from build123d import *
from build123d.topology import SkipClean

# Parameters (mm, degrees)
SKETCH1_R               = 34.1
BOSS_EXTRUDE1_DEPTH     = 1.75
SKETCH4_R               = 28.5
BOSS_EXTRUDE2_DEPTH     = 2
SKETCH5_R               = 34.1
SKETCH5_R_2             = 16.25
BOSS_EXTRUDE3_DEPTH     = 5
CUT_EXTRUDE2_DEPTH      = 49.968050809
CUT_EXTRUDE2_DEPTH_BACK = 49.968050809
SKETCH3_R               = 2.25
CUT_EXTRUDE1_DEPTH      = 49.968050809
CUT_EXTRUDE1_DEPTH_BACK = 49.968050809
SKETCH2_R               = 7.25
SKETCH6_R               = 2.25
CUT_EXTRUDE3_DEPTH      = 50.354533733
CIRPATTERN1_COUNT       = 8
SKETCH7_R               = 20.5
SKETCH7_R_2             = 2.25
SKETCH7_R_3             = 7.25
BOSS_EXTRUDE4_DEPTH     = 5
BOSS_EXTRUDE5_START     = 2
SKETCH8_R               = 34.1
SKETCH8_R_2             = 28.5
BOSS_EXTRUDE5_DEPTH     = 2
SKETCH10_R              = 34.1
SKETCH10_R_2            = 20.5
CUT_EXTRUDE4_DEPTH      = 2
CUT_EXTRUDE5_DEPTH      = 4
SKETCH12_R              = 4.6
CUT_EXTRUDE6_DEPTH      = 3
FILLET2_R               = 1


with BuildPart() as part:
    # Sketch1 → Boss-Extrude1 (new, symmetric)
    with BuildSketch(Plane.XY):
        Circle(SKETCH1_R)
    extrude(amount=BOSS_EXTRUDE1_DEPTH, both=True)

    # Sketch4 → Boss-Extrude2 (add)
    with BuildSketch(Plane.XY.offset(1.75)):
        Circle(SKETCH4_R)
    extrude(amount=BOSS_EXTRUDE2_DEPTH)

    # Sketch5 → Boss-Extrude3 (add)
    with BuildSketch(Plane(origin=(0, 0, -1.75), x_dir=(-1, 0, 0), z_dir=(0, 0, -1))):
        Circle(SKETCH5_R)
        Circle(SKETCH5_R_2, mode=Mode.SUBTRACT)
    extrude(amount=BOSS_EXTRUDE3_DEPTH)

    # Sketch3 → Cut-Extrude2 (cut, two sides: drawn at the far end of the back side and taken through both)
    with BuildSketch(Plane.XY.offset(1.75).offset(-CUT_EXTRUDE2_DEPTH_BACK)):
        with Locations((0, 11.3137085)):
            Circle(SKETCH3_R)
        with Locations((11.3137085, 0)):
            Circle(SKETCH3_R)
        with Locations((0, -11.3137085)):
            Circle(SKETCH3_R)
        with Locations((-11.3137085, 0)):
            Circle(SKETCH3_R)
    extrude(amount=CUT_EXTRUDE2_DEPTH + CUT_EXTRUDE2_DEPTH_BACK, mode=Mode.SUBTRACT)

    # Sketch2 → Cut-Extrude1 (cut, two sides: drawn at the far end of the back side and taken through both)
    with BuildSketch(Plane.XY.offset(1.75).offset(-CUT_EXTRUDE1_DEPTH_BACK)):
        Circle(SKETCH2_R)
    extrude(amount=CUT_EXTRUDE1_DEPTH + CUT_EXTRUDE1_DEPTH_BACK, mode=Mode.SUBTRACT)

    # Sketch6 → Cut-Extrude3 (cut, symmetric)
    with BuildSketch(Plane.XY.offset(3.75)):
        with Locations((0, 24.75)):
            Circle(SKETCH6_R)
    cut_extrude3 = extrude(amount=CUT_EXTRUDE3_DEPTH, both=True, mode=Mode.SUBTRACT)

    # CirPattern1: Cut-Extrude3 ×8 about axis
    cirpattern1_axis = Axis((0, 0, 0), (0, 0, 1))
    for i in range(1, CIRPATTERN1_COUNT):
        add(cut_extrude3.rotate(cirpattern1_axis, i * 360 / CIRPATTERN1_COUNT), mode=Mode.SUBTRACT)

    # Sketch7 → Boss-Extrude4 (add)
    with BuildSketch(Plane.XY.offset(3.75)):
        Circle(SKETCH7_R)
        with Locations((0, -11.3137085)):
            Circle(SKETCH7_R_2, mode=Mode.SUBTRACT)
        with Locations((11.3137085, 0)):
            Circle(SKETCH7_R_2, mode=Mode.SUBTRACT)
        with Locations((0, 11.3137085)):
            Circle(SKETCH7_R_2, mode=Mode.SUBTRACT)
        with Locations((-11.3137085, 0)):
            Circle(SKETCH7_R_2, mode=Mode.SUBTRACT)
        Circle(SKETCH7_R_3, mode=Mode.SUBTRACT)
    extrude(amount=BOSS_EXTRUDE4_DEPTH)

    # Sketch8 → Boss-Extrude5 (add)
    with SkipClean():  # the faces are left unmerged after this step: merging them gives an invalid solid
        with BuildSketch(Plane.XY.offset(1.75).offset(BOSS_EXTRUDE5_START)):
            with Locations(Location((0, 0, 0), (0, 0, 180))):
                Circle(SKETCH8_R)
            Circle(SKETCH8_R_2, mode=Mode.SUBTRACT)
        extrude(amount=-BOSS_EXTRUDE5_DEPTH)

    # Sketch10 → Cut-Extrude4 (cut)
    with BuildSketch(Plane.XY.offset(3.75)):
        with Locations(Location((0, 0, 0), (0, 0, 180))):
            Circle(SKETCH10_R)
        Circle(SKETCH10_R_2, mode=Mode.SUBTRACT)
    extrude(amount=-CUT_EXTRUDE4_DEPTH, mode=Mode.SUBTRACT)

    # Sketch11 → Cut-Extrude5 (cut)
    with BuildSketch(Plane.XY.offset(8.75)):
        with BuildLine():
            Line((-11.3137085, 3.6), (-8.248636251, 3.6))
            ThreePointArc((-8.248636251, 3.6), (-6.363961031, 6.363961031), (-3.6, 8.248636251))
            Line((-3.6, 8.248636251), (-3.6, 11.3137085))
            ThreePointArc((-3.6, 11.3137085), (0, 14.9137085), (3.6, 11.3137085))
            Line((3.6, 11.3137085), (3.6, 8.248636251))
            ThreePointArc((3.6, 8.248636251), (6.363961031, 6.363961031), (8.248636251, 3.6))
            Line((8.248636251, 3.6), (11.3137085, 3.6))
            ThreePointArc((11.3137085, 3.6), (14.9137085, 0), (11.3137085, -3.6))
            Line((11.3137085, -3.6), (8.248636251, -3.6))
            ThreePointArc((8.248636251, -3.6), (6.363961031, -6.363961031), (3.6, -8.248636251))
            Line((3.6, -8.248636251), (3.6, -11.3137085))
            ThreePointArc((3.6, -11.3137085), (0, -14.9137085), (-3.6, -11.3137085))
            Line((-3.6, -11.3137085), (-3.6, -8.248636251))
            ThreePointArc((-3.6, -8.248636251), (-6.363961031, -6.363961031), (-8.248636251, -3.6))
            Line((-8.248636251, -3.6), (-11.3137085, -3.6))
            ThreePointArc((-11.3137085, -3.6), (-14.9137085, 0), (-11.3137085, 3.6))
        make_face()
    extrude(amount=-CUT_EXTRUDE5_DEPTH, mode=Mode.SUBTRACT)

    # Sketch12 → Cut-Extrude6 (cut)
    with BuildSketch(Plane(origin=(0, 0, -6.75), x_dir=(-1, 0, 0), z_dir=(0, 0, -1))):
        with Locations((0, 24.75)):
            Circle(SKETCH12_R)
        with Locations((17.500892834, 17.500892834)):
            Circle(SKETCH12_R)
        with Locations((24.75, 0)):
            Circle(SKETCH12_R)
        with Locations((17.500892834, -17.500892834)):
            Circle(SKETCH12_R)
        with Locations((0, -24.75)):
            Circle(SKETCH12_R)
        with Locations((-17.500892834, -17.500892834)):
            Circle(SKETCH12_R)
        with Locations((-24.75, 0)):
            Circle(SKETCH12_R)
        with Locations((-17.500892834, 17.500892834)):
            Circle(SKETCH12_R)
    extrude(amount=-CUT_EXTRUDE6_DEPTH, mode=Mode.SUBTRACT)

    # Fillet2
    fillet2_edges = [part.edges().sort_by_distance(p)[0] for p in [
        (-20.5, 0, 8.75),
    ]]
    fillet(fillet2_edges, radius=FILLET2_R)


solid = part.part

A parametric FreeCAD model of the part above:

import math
import FreeCAD as App
import Part
import Sketcher
Q = App.Units.Quantity


def edges_at(feature, points):
    """Names of the edges that pass closest to the given points."""
    edges = feature.Shape.Edges
    near = lambda p: min(range(len(edges)), key=lambda i: edges[i].distToShape(Part.Vertex(*p))[0])
    return sorted({f"Edge{near(p) + 1}" for p in points})

doc = App.newDocument("Part")
body = doc.addObject("PartDesign::Body", "Body")

# Sketch on XY plane
sketch1 = body.newObject("Sketcher::SketchObject", "Sketch")
sketch1.AttachmentSupport = (doc.getObject("XY_Plane"), [""])
sketch1.MapMode = "FlatFace"
sketch1.addGeometry(Part.Circle(App.Vector(0, 0, 0), App.Vector(0, 0, 1), 34), False)
sketch1.addConstraint([
    Sketcher.Constraint("Coincident", 0, 3, -1, 1),
    Sketcher.Constraint("Diameter", 0, Q("68.2 mm")),
])
pad1 = body.newObject("PartDesign::Pad", "Pad")
pad1.Profile = sketch1
pad1.Length = 3.5
pad1.Midplane = True

# Sketch on XY plane
sketch2 = body.newObject("Sketcher::SketchObject", "Sketch001")
sketch2.AttachmentSupport = (doc.getObject("XY_Plane"), [""])
sketch2.MapMode = "FlatFace"
sketch2.AttachmentOffset = App.Placement(App.Vector(0, 0, 1.75), App.Rotation())
sketch2.addGeometry(Part.Circle(App.Vector(0, 0, 0), App.Vector(0, 0, 1), 28), False)
sketch2.addConstraint([
    Sketcher.Constraint("Coincident", 0, 3, -1, 1),
    Sketcher.Constraint("Diameter", 0, Q("57 mm")),
])
pad2 = body.newObject("PartDesign::Pad", "Pad001")
pad2.Profile = sketch2
pad2.Length = 2

# Sketch on XY plane
sketch3 = body.newObject("Sketcher::SketchObject", "Sketch002")
sketch3.AttachmentSupport = (doc.getObject("XY_Plane"), [""])
sketch3.MapMode = "FlatFace"
sketch3.AttachmentOffset = App.Placement(App.Vector(0, 0, -1.75), App.Rotation())
sketch3.addGeometry([
    Part.Circle(App.Vector(0, 0, 0), App.Vector(0, 0, 1), 34),
    Part.Circle(App.Vector(0, 0, 0), App.Vector(0, 0, 1), 16),
], False)
sketch3.addConstraint([
    Sketcher.Constraint("Coincident", 0, 3, -1, 1),
    Sketcher.Constraint("Coincident", 1, 3, -1, 1),
    Sketcher.Constraint("Diameter", 0, Q("68.2 mm")),
    Sketcher.Constraint("Diameter", 1, Q("32.5 mm")),
])
pad3 = body.newObject("PartDesign::Pad", "Pad002")
pad3.Profile = sketch3
pad3.Length = 5
pad3.Reversed = True

# Sketch on XY plane
sketch4 = body.newObject("Sketcher::SketchObject", "Sketch003")
sketch4.AttachmentSupport = (doc.getObject("XY_Plane"), [""])
sketch4.MapMode = "FlatFace"
sketch4.AttachmentOffset = App.Placement(App.Vector(0, 0, 1.75), App.Rotation())
sketch4.addGeometry([
    Part.Circle(App.Vector(0, 11.3, 0), App.Vector(0, 0, 1), 2.2),
    Part.Circle(App.Vector(11.3, 0, 0), App.Vector(0, 0, 1), 2.2),
    Part.Circle(App.Vector(0, -11.3, 0), App.Vector(0, 0, 1), 2.2),
    Part.Circle(App.Vector(-11.3, 0, 0), App.Vector(0, 0, 1), 2.2),
], False)
sketch4.addConstraint([
    Sketcher.Constraint("Equal", 0, 1),
    Sketcher.Constraint("Equal", 1, 2),
    Sketcher.Constraint("Equal", 2, 3),
    Sketcher.Constraint("Symmetric", 0, 3, 2, 3, -1, 1),
    Sketcher.Constraint("Symmetric", 1, 3, 3, 3, -1, 1),
    Sketcher.Constraint("PointOnObject", 0, 3, -2),
    Sketcher.Constraint("PointOnObject", 1, 3, -1),
    Sketcher.Constraint("Diameter", 0, Q("4.5 mm")),
    Sketcher.Constraint("DistanceY", -1, 1, 0, 3, Q("11.313709 mm")),
    Sketcher.Constraint("DistanceX", -1, 1, 1, 3, Q("11.313709 mm")),
])
pocket1 = body.newObject("PartDesign::Pocket", "Pocket")
pocket1.Profile = sketch4
pocket1.Type = "ThroughAll"
pocket1.Midplane = True

# Sketch on XY plane
sketch5 = body.newObject("Sketcher::SketchObject", "Sketch004")
sketch5.AttachmentSupport = (doc.getObject("XY_Plane"), [""])
sketch5.MapMode = "FlatFace"
sketch5.AttachmentOffset = App.Placement(App.Vector(0, 0, 1.75), App.Rotation())
sketch5.addGeometry(Part.Circle(App.Vector(0, 0, 0), App.Vector(0, 0, 1), 7), False)
sketch5.addConstraint([
    Sketcher.Constraint("Coincident", 0, 3, -1, 1),
    Sketcher.Constraint("Diameter", 0, Q("14.5 mm")),
])
pocket2 = body.newObject("PartDesign::Pocket", "Pocket001")
pocket2.Profile = sketch5
pocket2.Type = "ThroughAll"
pocket2.Midplane = True

# Sketch on XY plane
sketch6 = body.newObject("Sketcher::SketchObject", "Sketch005")
sketch6.AttachmentSupport = (doc.getObject("XY_Plane"), [""])
sketch6.MapMode = "FlatFace"
sketch6.AttachmentOffset = App.Placement(App.Vector(0, 0, 3.75), App.Rotation())
sketch6.addGeometry(Part.Circle(App.Vector(0, 24.8, 0), App.Vector(0, 0, 1), 2.2), False)
sketch6.addConstraint([
    Sketcher.Constraint("PointOnObject", 0, 3, -2),
    Sketcher.Constraint("Diameter", 0, Q("4.5 mm")),
    Sketcher.Constraint("DistanceY", -1, 1, 0, 3, Q("24.75 mm")),
])
pocket3 = body.newObject("PartDesign::Pocket", "Pocket002")
pocket3.Profile = sketch6
pocket3.Length = 100.709067
pocket3.Midplane = True
doc.recompute()

polarpattern = body.newObject("PartDesign::PolarPattern", "PolarPattern")
polarpattern.Originals = [pocket3]
polarpattern.Axis = (doc.getObject("Z_Axis"), [""])
polarpattern.Angle = 360
polarpattern.Occurrences = 8
body.Tip = polarpattern

# Sketch on XY plane
sketch7 = body.newObject("Sketcher::SketchObject", "Sketch006")
sketch7.AttachmentSupport = (doc.getObject("XY_Plane"), [""])
sketch7.MapMode = "FlatFace"
sketch7.AttachmentOffset = App.Placement(App.Vector(0, 0, 3.75), App.Rotation())
sketch7.addGeometry([
    Part.Circle(App.Vector(0, 0, 0), App.Vector(0, 0, 1), 20.5),  # 0
    Part.Circle(App.Vector(0, -11.3, 0), App.Vector(0, 0, 1), 2.2),  # 1
    Part.Circle(App.Vector(-11.3, 0, 0), App.Vector(0, 0, 1), 2.2),  # 2
    Part.Circle(App.Vector(0, 0, 0), App.Vector(0, 0, 1), 7.2),  # 3
    Part.Circle(App.Vector(11.3, 0, 0), App.Vector(0, 0, 1), 2.2),  # 4
    Part.Circle(App.Vector(0, 11.3, 0), App.Vector(0, 0, 1), 2.2),  # 5
], False)
sketch7.addConstraint([
    Sketcher.Constraint("Coincident", 0, 3, -1, 1),
    Sketcher.Constraint("Coincident", 3, 3, -1, 1),
    Sketcher.Constraint("Equal", 1, 2),
    Sketcher.Constraint("Equal", 2, 4),
    Sketcher.Constraint("Equal", 4, 5),
    Sketcher.Constraint("Symmetric", 2, 3, 4, 3, -1, 1),
    Sketcher.Constraint("Symmetric", 1, 3, 5, 3, -1, 1),
    Sketcher.Constraint("PointOnObject", 1, 3, -2),
    Sketcher.Constraint("PointOnObject", 2, 3, -1),
    Sketcher.Constraint("Diameter", 0, Q("41 mm")),
    Sketcher.Constraint("Diameter", 1, Q("4.5 mm")),
    Sketcher.Constraint("Diameter", 3, Q("14.5 mm")),
    Sketcher.Constraint("DistanceY", 1, 3, -1, 1, Q("11.313709 mm")),
    Sketcher.Constraint("DistanceX", 2, 3, -1, 1, Q("11.313709 mm")),
])
pad4 = body.newObject("PartDesign::Pad", "Pad003")
pad4.Profile = sketch7
pad4.Length = 5

# Sketch on XY plane
sketch8 = body.newObject("Sketcher::SketchObject", "Sketch007")
sketch8.AttachmentSupport = (doc.getObject("XY_Plane"), [""])
sketch8.MapMode = "FlatFace"
sketch8.AttachmentOffset = App.Placement(App.Vector(0, 0, 3.75), App.Rotation())
sketch8.addGeometry([
    Part.Circle(App.Vector(0, 0, 0), App.Vector(0, 0, 1), 34),
    Part.Circle(App.Vector(0, 0, 0), App.Vector(0, 0, 1), 28),
], False)
sketch8.addConstraint([
    Sketcher.Constraint("Coincident", 0, 3, -1, 1),
    Sketcher.Constraint("Coincident", 1, 3, -1, 1),
    Sketcher.Constraint("Diameter", 1, Q("57 mm")),
    Sketcher.Constraint("Diameter", 0, Q("68.2 mm")),
])
pad5 = body.newObject("PartDesign::Pad", "Pad004")
pad5.Profile = sketch8
pad5.Length = 2
pad5.Reversed = True

# Sketch on XY plane
sketch9 = body.newObject("Sketcher::SketchObject", "Sketch008")
sketch9.AttachmentSupport = (doc.getObject("XY_Plane"), [""])
sketch9.MapMode = "FlatFace"
sketch9.AttachmentOffset = App.Placement(App.Vector(0, 0, 3.75), App.Rotation())
sketch9.addGeometry([
    Part.Circle(App.Vector(0, 0, 0), App.Vector(0, 0, 1), 34),
    Part.Circle(App.Vector(0, 0, 0), App.Vector(0, 0, 1), 20),
], False)
sketch9.addConstraint([
    Sketcher.Constraint("Coincident", 0, 3, -1, 1),
    Sketcher.Constraint("Coincident", 1, 3, -1, 1),
    Sketcher.Constraint("Diameter", 1, Q("41 mm")),
    Sketcher.Constraint("Diameter", 0, Q("68.2 mm")),
])
pocket4 = body.newObject("PartDesign::Pocket", "Pocket003")
pocket4.Profile = sketch9
pocket4.Length = 2

# Sketch on XY plane
sketch10 = body.newObject("Sketcher::SketchObject", "Sketch009")
sketch10.AttachmentSupport = (doc.getObject("XY_Plane"), [""])
sketch10.MapMode = "FlatFace"
sketch10.AttachmentOffset = App.Placement(App.Vector(0, 0, 8.75), App.Rotation())
sketch10.addGeometry([
    Part.LineSegment(App.Vector(-8.2, 3.6, 0), App.Vector(-11.3, 3.6, 0)),  # 0
    Part.ArcOfCircle(Part.Circle(App.Vector(-11.3, 0, 0), App.Vector(0, 0, 1), 3.6), math.radians(90), math.radians(270)),  # 1
    Part.LineSegment(App.Vector(-11.3, -3.6, 0), App.Vector(-8.2, -3.6, 0)),  # 2
    Part.ArcOfCircle(Part.Circle(App.Vector(0, 0, 0), App.Vector(0, 0, 1), 9), math.radians(-156), math.radians(-114)),  # 3
    Part.LineSegment(App.Vector(-3.6, -8.2, 0), App.Vector(-3.6, -11.3, 0)),  # 4
    Part.ArcOfCircle(Part.Circle(App.Vector(0, -11.3, 0), App.Vector(0, 0, 1), 3.6), math.radians(180), math.radians(360)),  # 5
    Part.LineSegment(App.Vector(3.6, -11.3, 0), App.Vector(3.6, -8.2, 0)),  # 6
    Part.ArcOfCircle(Part.Circle(App.Vector(0, 0, 0), App.Vector(0, 0, 1), 9), math.radians(-66), math.radians(-24)),  # 7
    Part.LineSegment(App.Vector(8.2, -3.6, 0), App.Vector(11.3, -3.6, 0)),  # 8
    Part.ArcOfCircle(Part.Circle(App.Vector(11.3, 0, 0), App.Vector(0, 0, 1), 3.6), math.radians(-90), math.radians(90)),  # 9
    Part.LineSegment(App.Vector(11.3, 3.6, 0), App.Vector(8.2, 3.6, 0)),  # 10
    Part.ArcOfCircle(Part.Circle(App.Vector(0, 0, 0), App.Vector(0, 0, 1), 9), math.radians(24), math.radians(66)),  # 11
    Part.LineSegment(App.Vector(3.6, 8.2, 0), App.Vector(3.6, 11.3, 0)),  # 12
    Part.ArcOfCircle(Part.Circle(App.Vector(0, 11.3, 0), App.Vector(0, 0, 1), 3.6), math.radians(0), math.radians(180)),  # 13
    Part.LineSegment(App.Vector(-3.6, 11.3, 0), App.Vector(-3.6, 8.2, 0)),  # 14
    Part.ArcOfCircle(Part.Circle(App.Vector(0, 0, 0), App.Vector(0, 0, 1), 9), math.radians(114), math.radians(156)),  # 15
], False)
sketch10.addConstraint([
    Sketcher.Constraint("Tangent", 0, 2, 1, 1),
    Sketcher.Constraint("Tangent", 1, 2, 2, 1),
    Sketcher.Constraint("Coincident", 2, 2, 3, 1),
    Sketcher.Constraint("Coincident", 3, 2, 4, 1),
    Sketcher.Constraint("Tangent", 4, 2, 5, 1),
    Sketcher.Constraint("Tangent", 5, 2, 6, 1),
    Sketcher.Constraint("Coincident", 6, 2, 7, 1),
    Sketcher.Constraint("Coincident", 7, 2, 8, 1),
    Sketcher.Constraint("Tangent", 8, 2, 9, 1),
    Sketcher.Constraint("Tangent", 9, 2, 10, 1),
    Sketcher.Constraint("Coincident", 10, 2, 11, 1),
    Sketcher.Constraint("Coincident", 11, 2, 12, 1),
    Sketcher.Constraint("Tangent", 12, 2, 13, 1),
    Sketcher.Constraint("Tangent", 13, 2, 14, 1),
    Sketcher.Constraint("Coincident", 14, 2, 15, 1),
    Sketcher.Constraint("Coincident", 15, 2, 0, 1),
    Sketcher.Constraint("Horizontal", 0),
    Sketcher.Constraint("Horizontal", 2),
    Sketcher.Constraint("Vertical", 4),
    Sketcher.Constraint("Vertical", 6),
    Sketcher.Constraint("Horizontal", 8),
    Sketcher.Constraint("Horizontal", 10),
    Sketcher.Constraint("Vertical", 12),
    Sketcher.Constraint("Vertical", 14),
    Sketcher.Constraint("Coincident", 3, 3, -1, 1),
    Sketcher.Constraint("Coincident", 7, 3, -1, 1),
    Sketcher.Constraint("Coincident", 11, 3, -1, 1),
    Sketcher.Constraint("Coincident", 15, 3, -1, 1),
    Sketcher.Constraint("Equal", 1, 5),
    Sketcher.Constraint("Equal", 3, 7),
    Sketcher.Constraint("Equal", 5, 9),
    Sketcher.Constraint("Equal", 7, 11),
    Sketcher.Constraint("Equal", 9, 13),
    Sketcher.Constraint("Equal", 11, 15),
    Sketcher.Constraint("Symmetric", 1, 3, 9, 3, -1, 1),
    Sketcher.Constraint("Symmetric", 5, 3, 13, 3, -1, 1),
    Sketcher.Constraint("PointOnObject", 1, 3, -1),
    Sketcher.Constraint("PointOnObject", 5, 3, -2),
    Sketcher.Constraint("Equal", 10, 4),
    Sketcher.Constraint("Radius", 3, Q("9 mm")),
    Sketcher.Constraint("Radius", 1, Q("3.6 mm")),
    Sketcher.Constraint("DistanceX", 0, 2, 0, 1, Q("3.065072 mm")),
])
pocket5 = body.newObject("PartDesign::Pocket", "Pocket004")
pocket5.Profile = sketch10
pocket5.Length = 4

# Sketch on XY plane
sketch11 = body.newObject("Sketcher::SketchObject", "Sketch010")
sketch11.AttachmentSupport = (doc.getObject("XY_Plane"), [""])
sketch11.MapMode = "FlatFace"
sketch11.AttachmentOffset = App.Placement(App.Vector(0, 0, -6.75), App.Rotation())
sketch11.addGeometry([
    Part.Circle(App.Vector(0, 24.8, 0), App.Vector(0, 0, 1), 4.6),  # 0
    Part.Circle(App.Vector(-17.5, 17.5, 0), App.Vector(0, 0, 1), 4.6),  # 1
    Part.Circle(App.Vector(-24.8, 0, 0), App.Vector(0, 0, 1), 4.6),  # 2
    Part.Circle(App.Vector(-17.5, -17.5, 0), App.Vector(0, 0, 1), 4.6),  # 3
    Part.Circle(App.Vector(0, -24.8, 0), App.Vector(0, 0, 1), 4.6),  # 4
    Part.Circle(App.Vector(17.5, -17.5, 0), App.Vector(0, 0, 1), 4.6),  # 5
    Part.Circle(App.Vector(24.8, 0, 0), App.Vector(0, 0, 1), 4.6),  # 6
    Part.Circle(App.Vector(17.5, 17.5, 0), App.Vector(0, 0, 1), 4.6),  # 7
], False)
sketch11.addConstraint([
    Sketcher.Constraint("Equal", 0, 1),
    Sketcher.Constraint("Equal", 1, 2),
    Sketcher.Constraint("Equal", 2, 3),
    Sketcher.Constraint("Equal", 3, 4),
    Sketcher.Constraint("Equal", 4, 5),
    Sketcher.Constraint("Equal", 5, 6),
    Sketcher.Constraint("Equal", 6, 7),
    Sketcher.Constraint("Symmetric", 0, 3, 4, 3, -1, 1),
    Sketcher.Constraint("Symmetric", 1, 3, 5, 3, -1, 1),
    Sketcher.Constraint("Symmetric", 2, 3, 6, 3, -1, 1),
    Sketcher.Constraint("Symmetric", 3, 3, 7, 3, -1, 1),
    Sketcher.Constraint("Symmetric", 3, 3, 5, 3, -2),
    Sketcher.Constraint("PointOnObject", 0, 3, -2),
    Sketcher.Constraint("PointOnObject", 2, 3, -1),
    Sketcher.Constraint("Diameter", 0, Q("9.2 mm")),
    Sketcher.Constraint("DistanceY", 4, 3, 0, 3, Q("49.5 mm")),
    Sketcher.Constraint("DistanceX", 2, 3, -1, 1, Q("24.75 mm")),
    Sketcher.Constraint("DistanceX", 1, 3, -1, 1, Q("17.500893 mm")),
    Sketcher.Constraint("DistanceY", -1, 1, 1, 3, Q("17.500893 mm")),
])
pocket6 = body.newObject("PartDesign::Pocket", "Pocket005")
pocket6.Profile = sketch11
pocket6.Length = 3
pocket6.Reversed = True
doc.recompute()

fillet = body.newObject("PartDesign::Fillet", "Fillet")
fillet.Base = (pocket6, edges_at(pocket6, [(-20.5, 0, 8.75)]))
fillet.Radius = 1

doc.recompute()
